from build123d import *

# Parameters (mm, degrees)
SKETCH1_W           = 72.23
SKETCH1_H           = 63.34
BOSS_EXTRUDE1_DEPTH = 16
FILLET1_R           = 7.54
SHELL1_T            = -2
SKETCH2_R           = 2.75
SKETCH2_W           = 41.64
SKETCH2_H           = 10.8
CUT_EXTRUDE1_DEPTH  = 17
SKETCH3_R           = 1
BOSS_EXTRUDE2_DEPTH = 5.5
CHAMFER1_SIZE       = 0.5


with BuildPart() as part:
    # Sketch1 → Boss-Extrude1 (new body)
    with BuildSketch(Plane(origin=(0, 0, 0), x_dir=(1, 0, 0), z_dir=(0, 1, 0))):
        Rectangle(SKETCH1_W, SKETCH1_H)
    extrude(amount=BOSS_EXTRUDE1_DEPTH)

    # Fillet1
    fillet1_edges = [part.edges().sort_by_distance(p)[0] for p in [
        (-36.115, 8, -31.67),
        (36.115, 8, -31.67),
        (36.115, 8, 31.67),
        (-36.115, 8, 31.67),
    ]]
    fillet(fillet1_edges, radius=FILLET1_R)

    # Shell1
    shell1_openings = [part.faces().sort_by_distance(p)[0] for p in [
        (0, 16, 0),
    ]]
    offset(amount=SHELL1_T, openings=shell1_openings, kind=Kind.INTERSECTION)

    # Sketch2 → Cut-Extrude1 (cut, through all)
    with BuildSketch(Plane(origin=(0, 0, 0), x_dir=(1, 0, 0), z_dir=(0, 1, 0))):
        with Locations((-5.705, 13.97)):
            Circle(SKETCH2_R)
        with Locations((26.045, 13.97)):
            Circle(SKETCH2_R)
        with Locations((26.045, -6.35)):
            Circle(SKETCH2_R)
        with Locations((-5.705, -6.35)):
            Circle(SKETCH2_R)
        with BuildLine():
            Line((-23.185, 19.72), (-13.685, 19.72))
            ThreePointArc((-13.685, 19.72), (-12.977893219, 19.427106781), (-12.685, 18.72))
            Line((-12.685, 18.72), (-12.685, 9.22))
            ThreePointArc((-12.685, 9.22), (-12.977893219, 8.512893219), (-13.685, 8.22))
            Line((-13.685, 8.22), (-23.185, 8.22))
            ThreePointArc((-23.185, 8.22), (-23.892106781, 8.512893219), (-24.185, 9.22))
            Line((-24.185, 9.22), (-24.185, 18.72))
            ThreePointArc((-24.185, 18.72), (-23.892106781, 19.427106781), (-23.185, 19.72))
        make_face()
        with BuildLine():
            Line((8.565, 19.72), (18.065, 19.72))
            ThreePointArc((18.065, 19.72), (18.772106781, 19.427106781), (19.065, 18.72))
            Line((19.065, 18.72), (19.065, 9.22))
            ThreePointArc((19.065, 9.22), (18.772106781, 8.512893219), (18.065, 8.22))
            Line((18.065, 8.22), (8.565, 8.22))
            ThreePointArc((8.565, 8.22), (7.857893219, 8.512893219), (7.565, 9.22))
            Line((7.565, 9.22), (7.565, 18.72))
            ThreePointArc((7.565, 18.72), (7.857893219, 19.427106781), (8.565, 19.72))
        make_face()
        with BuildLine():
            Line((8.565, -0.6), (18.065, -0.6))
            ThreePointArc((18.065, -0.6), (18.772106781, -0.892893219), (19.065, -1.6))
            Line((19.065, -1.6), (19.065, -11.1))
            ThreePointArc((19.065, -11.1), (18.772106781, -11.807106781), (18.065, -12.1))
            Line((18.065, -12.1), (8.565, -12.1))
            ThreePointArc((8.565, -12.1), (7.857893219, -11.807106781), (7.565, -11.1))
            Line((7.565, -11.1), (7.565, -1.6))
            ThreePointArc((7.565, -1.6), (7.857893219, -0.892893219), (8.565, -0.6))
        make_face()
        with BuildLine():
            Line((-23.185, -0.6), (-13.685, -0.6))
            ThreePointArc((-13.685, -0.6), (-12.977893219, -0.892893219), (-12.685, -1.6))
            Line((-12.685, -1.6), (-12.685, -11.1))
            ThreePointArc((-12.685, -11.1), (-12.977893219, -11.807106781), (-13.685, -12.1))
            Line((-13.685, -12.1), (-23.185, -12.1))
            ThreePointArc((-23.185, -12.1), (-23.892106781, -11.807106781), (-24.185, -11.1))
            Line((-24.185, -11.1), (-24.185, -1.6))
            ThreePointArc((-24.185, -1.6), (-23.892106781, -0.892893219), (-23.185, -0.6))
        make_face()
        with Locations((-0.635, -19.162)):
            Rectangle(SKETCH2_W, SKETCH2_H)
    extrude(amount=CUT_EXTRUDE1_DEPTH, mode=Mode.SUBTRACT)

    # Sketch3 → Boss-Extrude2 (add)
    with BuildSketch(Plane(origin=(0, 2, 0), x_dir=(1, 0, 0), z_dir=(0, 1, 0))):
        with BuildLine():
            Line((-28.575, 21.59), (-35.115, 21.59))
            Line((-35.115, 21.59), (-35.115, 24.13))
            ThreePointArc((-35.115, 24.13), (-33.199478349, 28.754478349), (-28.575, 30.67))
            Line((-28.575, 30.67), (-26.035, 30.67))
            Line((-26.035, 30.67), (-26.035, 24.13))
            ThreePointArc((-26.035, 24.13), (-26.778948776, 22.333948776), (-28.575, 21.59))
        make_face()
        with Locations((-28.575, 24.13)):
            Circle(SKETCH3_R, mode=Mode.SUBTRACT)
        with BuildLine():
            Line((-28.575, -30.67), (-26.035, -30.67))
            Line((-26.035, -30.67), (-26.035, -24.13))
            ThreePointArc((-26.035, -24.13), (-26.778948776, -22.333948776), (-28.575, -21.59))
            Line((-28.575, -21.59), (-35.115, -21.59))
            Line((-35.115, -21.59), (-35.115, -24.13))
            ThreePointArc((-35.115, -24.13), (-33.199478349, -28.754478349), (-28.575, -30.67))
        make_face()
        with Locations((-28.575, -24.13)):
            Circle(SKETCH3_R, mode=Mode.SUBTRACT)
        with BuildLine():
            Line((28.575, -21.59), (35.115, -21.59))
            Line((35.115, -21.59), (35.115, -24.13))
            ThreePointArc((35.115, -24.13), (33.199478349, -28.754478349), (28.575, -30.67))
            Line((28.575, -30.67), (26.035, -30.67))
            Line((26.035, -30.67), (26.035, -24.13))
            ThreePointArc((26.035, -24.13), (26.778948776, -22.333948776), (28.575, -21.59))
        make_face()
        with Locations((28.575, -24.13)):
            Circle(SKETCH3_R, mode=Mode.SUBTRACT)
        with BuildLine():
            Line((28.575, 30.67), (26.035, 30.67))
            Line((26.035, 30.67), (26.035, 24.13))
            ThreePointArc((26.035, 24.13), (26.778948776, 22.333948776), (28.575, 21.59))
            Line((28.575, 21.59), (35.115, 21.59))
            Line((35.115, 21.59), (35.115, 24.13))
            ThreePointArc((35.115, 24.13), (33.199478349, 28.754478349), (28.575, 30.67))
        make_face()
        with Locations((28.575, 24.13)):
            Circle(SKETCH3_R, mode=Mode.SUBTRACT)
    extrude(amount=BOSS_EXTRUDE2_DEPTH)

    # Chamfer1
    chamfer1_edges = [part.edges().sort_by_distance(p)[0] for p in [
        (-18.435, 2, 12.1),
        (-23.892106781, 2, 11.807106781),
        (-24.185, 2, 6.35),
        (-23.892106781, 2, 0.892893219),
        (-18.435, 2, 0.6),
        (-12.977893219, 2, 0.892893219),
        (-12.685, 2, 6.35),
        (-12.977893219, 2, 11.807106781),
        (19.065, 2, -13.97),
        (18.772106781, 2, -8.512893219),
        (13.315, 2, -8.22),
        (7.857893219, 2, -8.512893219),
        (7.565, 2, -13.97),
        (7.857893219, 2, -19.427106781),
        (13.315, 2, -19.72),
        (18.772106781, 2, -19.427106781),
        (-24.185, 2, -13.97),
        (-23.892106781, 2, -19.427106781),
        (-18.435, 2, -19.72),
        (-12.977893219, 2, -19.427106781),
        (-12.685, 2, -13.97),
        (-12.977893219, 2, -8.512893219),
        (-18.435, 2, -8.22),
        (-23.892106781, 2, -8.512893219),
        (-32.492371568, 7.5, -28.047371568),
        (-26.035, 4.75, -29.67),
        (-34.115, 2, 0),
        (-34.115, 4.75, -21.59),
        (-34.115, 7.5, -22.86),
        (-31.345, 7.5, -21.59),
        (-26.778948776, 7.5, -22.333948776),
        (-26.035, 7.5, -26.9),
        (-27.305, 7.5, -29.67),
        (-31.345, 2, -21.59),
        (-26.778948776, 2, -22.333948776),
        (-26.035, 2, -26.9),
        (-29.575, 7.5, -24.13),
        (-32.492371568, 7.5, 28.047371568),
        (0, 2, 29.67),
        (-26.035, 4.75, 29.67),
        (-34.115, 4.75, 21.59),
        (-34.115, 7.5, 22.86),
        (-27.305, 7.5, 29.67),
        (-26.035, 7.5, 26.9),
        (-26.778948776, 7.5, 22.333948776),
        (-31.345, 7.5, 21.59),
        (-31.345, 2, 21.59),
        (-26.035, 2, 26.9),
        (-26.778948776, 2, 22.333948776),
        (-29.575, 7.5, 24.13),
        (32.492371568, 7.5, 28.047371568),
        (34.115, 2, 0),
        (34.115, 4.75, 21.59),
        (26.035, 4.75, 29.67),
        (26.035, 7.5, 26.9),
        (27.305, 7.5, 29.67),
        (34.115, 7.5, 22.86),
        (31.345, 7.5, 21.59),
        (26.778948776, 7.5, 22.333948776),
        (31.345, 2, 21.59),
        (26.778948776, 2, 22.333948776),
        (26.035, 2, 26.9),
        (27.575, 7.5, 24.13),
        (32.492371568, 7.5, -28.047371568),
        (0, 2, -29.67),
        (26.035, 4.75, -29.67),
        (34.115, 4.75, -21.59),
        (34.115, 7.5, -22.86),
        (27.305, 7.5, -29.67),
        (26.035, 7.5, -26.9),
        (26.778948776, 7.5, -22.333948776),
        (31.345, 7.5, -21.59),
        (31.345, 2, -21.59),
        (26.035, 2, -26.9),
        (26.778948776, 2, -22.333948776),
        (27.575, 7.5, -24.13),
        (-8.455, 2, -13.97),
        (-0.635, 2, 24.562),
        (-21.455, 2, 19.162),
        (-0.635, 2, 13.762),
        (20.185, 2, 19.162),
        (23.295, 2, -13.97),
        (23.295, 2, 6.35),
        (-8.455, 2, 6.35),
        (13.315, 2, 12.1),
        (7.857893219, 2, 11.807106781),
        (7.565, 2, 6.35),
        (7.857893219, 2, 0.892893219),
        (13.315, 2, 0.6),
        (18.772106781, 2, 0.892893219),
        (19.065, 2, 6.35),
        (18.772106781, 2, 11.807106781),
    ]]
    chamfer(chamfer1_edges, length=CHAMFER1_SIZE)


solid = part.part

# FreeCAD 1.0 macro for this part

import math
import FreeCAD as App
import Part
import Sketcher

V = App.Vector


def edges_at(feature, points):
    """Names of the edges that pass closest to the given points."""
    edges = feature.Shape.Edges
    near = lambda p: min(range(len(edges)), key=lambda i: edges[i].distToShape(Part.Vertex(*p))[0])
    return sorted({f"Edge{near(p) + 1}" for p in points})


def faces_at(feature, points):
    """Names of the faces that lie closest to the given points."""
    faces = feature.Shape.Faces
    near = lambda p: min(range(len(faces)), key=lambda i: faces[i].distToShape(Part.Vertex(*p))[0])
    return sorted({f"Face{near(p) + 1}" for p in points})


def add_polygon(sketch, points):
    """Adds a closed chain of lines whose ends are joined by coincident constraints."""
    first, n = sketch.GeometryCount, len(points)
    for a, b in zip(points, points[1:] + points[:1]):
        sketch.addGeometry(Part.LineSegment(App.Vector(*a, 0), App.Vector(*b, 0)), False)
    for i in range(n):
        sketch.addConstraint(Sketcher.Constraint("Coincident", first + i, 2, first + (i + 1) % n, 1))

doc = App.newDocument("Part")
params = doc.addObject("Spreadsheet::Sheet", "Params")
for row, (alias, value) in enumerate([
    ("sketch1_width", "72.23 mm"),
    ("sketch1_height", "63.34 mm"),
    ("pad1_length", "16 mm"),
    ("fillet_radius", "7.54 mm"),
    ("thickness_wall", "2 mm"),
    ("sketch2_radius", "1 mm"),
    ("sketch2_diameter", "5.5 mm"),
    ("sketch2_width", "9.5 mm"),
    ("sketch2_height", "10.8 mm"),
    ("sketch2_width2", "41.64 mm"),
    ("sketch3_diameter", "2 mm"),
    ("sketch3_radius", "2.54 mm"),
    ("sketch3_radius2", "6.54 mm"),
    ("pad2_length", "5.5 mm"),
    ("chamfer_size", "0.5 mm"),
], start=1):
    params.set(f"A{row}", alias)
    params.set(f"B{row}", "=" + value)
    params.setAlias(f"B{row}", alias)

body = doc.addObject("PartDesign::Body", "Body")

sketch1 = body.newObject("Sketcher::SketchObject", "Sketch")
sketch1.AttachmentSupport = (doc.getObject("XZ_Plane"), [""])
sketch1.MapMode = "FlatFace"
add_polygon(sketch1, [(-36, -32), (-36, 32), (36, 32), (36, -32)])
sketch1.addConstraint([
    Sketcher.Constraint("Vertical", 0),
    Sketcher.Constraint("Horizontal", 1),
    Sketcher.Constraint("Vertical", 2),
    Sketcher.Constraint("Horizontal", 3),
    Sketcher.Constraint("Symmetric", 0, 2, 2, 2, -1, 1),
    Sketcher.Constraint("DistanceX", 1, 1, 1, 2, 72.23),
    Sketcher.Constraint("DistanceY", 0, 1, 0, 2, 63.34),
])
sketch1.setExpression("Constraints[9]", "Params.sketch1_width")
sketch1.setExpression("Constraints[10]", "Params.sketch1_height")
pad1 = body.newObject("PartDesign::Pad", "Pad")
pad1.Profile = sketch1
pad1.setExpression("Length", "Params.pad1_length")
pad1.Reversed = True
doc.recompute()

fillet = body.newObject("PartDesign::Fillet", "Fillet")
fillet.Base = (pad1, edges_at(pad1, [
    (-36.115, 8, -31.67),
    (36.115, 8, -31.67),
    (36.115, 8, 31.67),
    (-36.115, 8, 31.67),
]))
fillet.setExpression("Radius", "Params.fillet_radius")
doc.recompute()

thickness = body.newObject("PartDesign::Thickness", "Thickness")
thickness.Base = (fillet, faces_at(fillet, [(0, 16, 0)]))
thickness.setExpression("Value", "Params.thickness_wall")
thickness.Reversed = True
thickness.Join = "Intersection"

sketch2 = body.newObject("Sketcher::SketchObject", "Sketch001")
sketch2.AttachmentSupport = (doc.getObject("XZ_Plane"), [""])
sketch2.MapMode = "FlatFace"
sketch2.addGeometry(Part.Circle(V(-5.7, -14, 0), V(0, 0, 1), 2.8), False)
sketch2.addGeometry(Part.Circle(V(26, -14, 0), V(0, 0, 1), 2.8), False)
sketch2.addGeometry(Part.Circle(V(26, 6.3, 0), V(0, 0, 1), 2.8), False)
sketch2.addGeometry(Part.Circle(V(-5.7, 6.3, 0), V(0, 0, 1), 2.8), False)
sketch2.addGeometry(Part.LineSegment(V(-13.7, -19.7, 0), V(-23.2, -19.7, 0)), False)
sketch2.addGeometry(Part.ArcOfCircle(Part.Circle(V(-23.2, -18.7, 0), V(0, 0, 1), 1), math.radians(-180), math.radians(-90)), False)
sketch2.addGeometry(Part.LineSegment(V(-24.2, -18.7, 0), V(-24.2, -9.2, 0)), False)
sketch2.addGeometry(Part.ArcOfCircle(Part.Circle(V(-23.2, -9.2, 0), V(0, 0, 1), 1), math.radians(90), math.radians(180)), False)
sketch2.addGeometry(Part.LineSegment(V(-23.2, -8.2, 0), V(-13.7, -8.2, 0)), False)
sketch2.addGeometry(Part.ArcOfCircle(Part.Circle(V(-13.7, -9.2, 0), V(0, 0, 1), 1), math.radians(0), math.radians(90)), False)
sketch2.addGeometry(Part.LineSegment(V(-12.7, -9.2, 0), V(-12.7, -18.7, 0)), False)
sketch2.addGeometry(Part.ArcOfCircle(Part.Circle(V(-13.7, -18.7, 0), V(0, 0, 1), 1), math.radians(-90), math.radians(0)), False)
sketch2.addGeometry(Part.LineSegment(V(18.1, -19.7, 0), V(8.6, -19.7, 0)), False)
sketch2.addGeometry(Part.ArcOfCircle(Part.Circle(V(8.6, -18.7, 0), V(0, 0, 1), 1), math.radians(-180), math.radians(-90)), False)
sketch2.addGeometry(Part.LineSegment(V(7.6, -18.7, 0), V(7.6, -9.2, 0)), False)
sketch2.addGeometry(Part.ArcOfCircle(Part.Circle(V(8.6, -9.2, 0), V(0, 0, 1), 1), math.radians(90), math.radians(180)), False)
sketch2.addGeometry(Part.LineSegment(V(8.6, -8.2, 0), V(18.1, -8.2, 0)), False)
sketch2.addGeometry(Part.ArcOfCircle(Part.Circle(V(18.1, -9.2, 0), V(0, 0, 1), 1), math.radians(0), math.radians(90)), False)
sketch2.addGeometry(Part.LineSegment(V(19.1, -9.2, 0), V(19.1, -18.7, 0)), False)
sketch2.addGeometry(Part.ArcOfCircle(Part.Circle(V(18.1, -18.7, 0), V(0, 0, 1), 1), math.radians(-90), math.radians(0)), False)
sketch2.addGeometry(Part.LineSegment(V(18.1, 0.6, 0), V(8.6, 0.6, 0)), False)
sketch2.addGeometry(Part.ArcOfCircle(Part.Circle(V(8.6, 1.6, 0), V(0, 0, 1), 1), math.radians(-180), math.radians(-90)), False)
sketch2.addGeometry(Part.LineSegment(V(7.6, 1.6, 0), V(7.6, 11.1, 0)), False)
sketch2.addGeometry(Part.ArcOfCircle(Part.Circle(V(8.6, 11.1, 0), V(0, 0, 1), 1), math.radians(90), math.radians(180)), False)
sketch2.addGeometry(Part.LineSegment(V(8.6, 12.1, 0), V(18.1, 12.1, 0)), False)
sketch2.addGeometry(Part.ArcOfCircle(Part.Circle(V(18.1, 11.1, 0), V(0, 0, 1), 1), math.radians(0), math.radians(90)), False)
sketch2.addGeometry(Part.LineSegment(V(19.1, 11.1, 0), V(19.1, 1.6, 0)), False)
sketch2.addGeometry(Part.ArcOfCircle(Part.Circle(V(18.1, 1.6, 0), V(0, 0, 1), 1), math.radians(-90), math.radians(0)), False)
sketch2.addGeometry(Part.LineSegment(V(-13.7, 0.6, 0), V(-23.2, 0.6, 0)), False)
sketch2.addGeometry(Part.ArcOfCircle(Part.Circle(V(-23.2, 1.6, 0), V(0, 0, 1), 1), math.radians(-180), math.radians(-90)), False)
sketch2.addGeometry(Part.LineSegment(V(-24.2, 1.6, 0), V(-24.2, 11.1, 0)), False)
sketch2.addGeometry(Part.ArcOfCircle(Part.Circle(V(-23.2, 11.1, 0), V(0, 0, 1), 1), math.radians(90), math.radians(180)), False)
sketch2.addGeometry(Part.LineSegment(V(-23.2, 12.1, 0), V(-13.7, 12.1, 0)), False)
sketch2.addGeometry(Part.ArcOfCircle(Part.Circle(V(-13.7, 11.1, 0), V(0, 0, 1), 1), math.radians(0), math.radians(90)), False)
sketch2.addGeometry(Part.LineSegment(V(-12.7, 11.1, 0), V(-12.7, 1.6, 0)), False)
sketch2.addGeometry(Part.ArcOfCircle(Part.Circle(V(-13.7, 1.6, 0), V(0, 0, 1), 1), math.radians(-90), math.radians(0)), False)
add_polygon(sketch2, [(-21.5, 13.8), (-21.5, 24.6), (20.2, 24.6), (20.2, 13.8)])
sketch2.addConstraint([
    Sketcher.Constraint("Tangent", 4, 2, 5, 2),
    Sketcher.Constraint("Tangent", 5, 1, 6, 1),
    Sketcher.Constraint("Tangent", 6, 2, 7, 2),
    Sketcher.Constraint("Tangent", 7, 1, 8, 1),
    Sketcher.Constraint("Tangent", 8, 2, 9, 2),
    Sketcher.Constraint("Tangent", 9, 1, 10, 1),
    Sketcher.Constraint("Tangent", 10, 2, 11, 2),
    Sketcher.Constraint("Tangent", 11, 1, 4, 1),
    Sketcher.Constraint("Tangent", 12, 2, 13, 2),
    Sketcher.Constraint("Tangent", 13, 1, 14, 1),
    Sketcher.Constraint("Tangent", 14, 2, 15, 2),
    Sketcher.Constraint("Tangent", 15, 1, 16, 1),
    Sketcher.Constraint("Tangent", 16, 2, 17, 2),
    Sketcher.Constraint("Tangent", 17, 1, 18, 1),
    Sketcher.Constraint("Tangent", 18, 2, 19, 2),
    Sketcher.Constraint("Tangent", 19, 1, 12, 1),
    Sketcher.Constraint("Tangent", 20, 2, 21, 2),
    Sketcher.Constraint("Tangent", 21, 1, 22, 1),
    Sketcher.Constraint("Tangent", 22, 2, 23, 2),
    Sketcher.Constraint("Tangent", 23, 1, 24, 1),
    Sketcher.Constraint("Tangent", 24, 2, 25, 2),
    Sketcher.Constraint("Tangent", 25, 1, 26, 1),
    Sketcher.Constraint("Tangent", 26, 2, 27, 2),
    Sketcher.Constraint("Tangent", 27, 1, 20, 1),
    Sketcher.Constraint("Tangent", 28, 2, 29, 2),
    Sketcher.Constraint("Tangent", 29, 1, 30, 1),
    Sketcher.Constraint("Tangent", 30, 2, 31, 2),
    Sketcher.Constraint("Tangent", 31, 1, 32, 1),
    Sketcher.Constraint("Tangent", 32, 2, 33, 2),
    Sketcher.Constraint("Tangent", 33, 1, 34, 1),
    Sketcher.Constraint("Tangent", 34, 2, 35, 2),
    Sketcher.Constraint("Tangent", 35, 1, 28, 1),
    Sketcher.Constraint("Horizontal", 4),
    Sketcher.Constraint("Vertical", 6),
    Sketcher.Constraint("Horizontal", 8),
    Sketcher.Constraint("Vertical", 10),
    Sketcher.Constraint("Horizontal", 12),
    Sketcher.Constraint("Vertical", 14),
    Sketcher.Constraint("Horizontal", 16),
    Sketcher.Constraint("Vertical", 18),
    Sketcher.Constraint("Horizontal", 20),
    Sketcher.Constraint("Vertical", 22),
    Sketcher.Constraint("Horizontal", 24),
    Sketcher.Constraint("Vertical", 26),
    Sketcher.Constraint("Horizontal", 28),
    Sketcher.Constraint("Vertical", 30),
    Sketcher.Constraint("Horizontal", 32),
    Sketcher.Constraint("Vertical", 34),
    Sketcher.Constraint("Vertical", 36),
    Sketcher.Constraint("Horizontal", 37),
    Sketcher.Constraint("Vertical", 38),
    Sketcher.Constraint("Horizontal", 39),
    Sketcher.Constraint("Equal", 0, 1),
    Sketcher.Constraint("Equal", 1, 2),
    Sketcher.Constraint("Equal", 2, 3),
    Sketcher.Constraint("Equal", 5, 7),
    Sketcher.Constraint("Equal", 7, 9),
    Sketcher.Constraint("Equal", 9, 11),
    Sketcher.Constraint("Equal", 11, 13),
    Sketcher.Constraint("Equal", 13, 15),
    Sketcher.Constraint("Equal", 15, 17),
    Sketcher.Constraint("Equal", 17, 19),
    Sketcher.Constraint("Equal", 19, 21),
    Sketcher.Constraint("Equal", 21, 23),
    Sketcher.Constraint("Equal", 23, 25),
    Sketcher.Constraint("Equal", 25, 27),
    Sketcher.Constraint("Equal", 27, 29),
    Sketcher.Constraint("Equal", 29, 31),
    Sketcher.Constraint("Equal", 31, 33),
    Sketcher.Constraint("Equal", 33, 35),
    Sketcher.Constraint("Horizontal", 0, 3, 1, 3),
    Sketcher.Constraint("Horizontal", 2, 3, 3, 3),
    Sketcher.Constraint("Horizontal", 11, 3, 13, 3),
    Sketcher.Constraint("Horizontal", 9, 3, 15, 3),
    Sketcher.Constraint("Horizontal", 27, 3, 29, 3),
    Sketcher.Constraint("Horizontal", 25, 3, 31, 3),
    Sketcher.Constraint("Vertical", 1, 3, 2, 3),
    Sketcher.Constraint("Vertical", 0, 3, 3, 3),
    Sketcher.Constraint("Vertical", 15, 3, 21, 3),
    Sketcher.Constraint("Vertical", 19, 3, 25, 3),
    Sketcher.Constraint("Vertical", 7, 3, 29, 3),
    Sketcher.Constraint("Vertical", 11, 3, 33, 3),
    Sketcher.Constraint("Equal", 8, 12),
    Sketcher.Constraint("Equal", 32, 6),
    Sketcher.Constraint("Equal", 18, 22),
    Sketcher.Constraint("Radius", 5, 1.0),
    Sketcher.Constraint("Diameter", 0, 5.5),
    Sketcher.Constraint("DistanceX", 4, 2, 4, 1, 9.5),
    Sketcher.Constraint("DistanceY", 36, 1, 36, 2, 10.8),
    Sketcher.Constraint("DistanceX", 37, 1, 37, 2, 41.64),
    Sketcher.Constraint("DistanceY", -1, 1, 21, 3, 1.6),
    Sketcher.Constraint("DistanceY", 0, 3, -1, 1, 13.97),
    Sketcher.Constraint("DistanceY", -1, 1, 2, 3, 6.35),
    Sketcher.Constraint("DistanceY", 5, 3, -1, 1, 18.72),
    Sketcher.Constraint("DistanceX", 0, 3, 1, 3, 31.75),
    Sketcher.Constraint("DistanceX", 5, 3, 0, 3, 17.48),
    Sketcher.Constraint("DistanceX", 0, 3, 13, 3, 14.27),
    Sketcher.Constraint("DistanceX", 31, 1, 36, 2, 1.73),
    Sketcher.Constraint("DistanceX", 0, 3, -1, 1, 5.705),
    Sketcher.Constraint("DistanceY", -1, 1, 36, 2, 24.562),
])
sketch2.setExpression("Constraints[89]", "Params.sketch2_radius")
sketch2.setExpression("Constraints[90]", "Params.sketch2_diameter")
sketch2.setExpression("Constraints[91]", "Params.sketch2_width")
sketch2.setExpression("Constraints[92]", "Params.sketch2_height")
sketch2.setExpression("Constraints[93]", "Params.sketch2_width2")
pocket1 = body.newObject("PartDesign::Pocket", "Pocket")
pocket1.Profile = sketch2
pocket1.Type = "ThroughAll"

sketch3 = body.newObject("Sketcher::SketchObject", "Sketch002")
sketch3.AttachmentSupport = (doc.getObject("XZ_Plane"), [""])
sketch3.MapMode = "FlatFace"
sketch3.AttachmentOffset = App.Placement(V(0, 0, -2), App.Rotation())
sketch3.addGeometry([
    Part.LineSegment(V(-35.1, -21.6, 0), V(-28.6, -21.6, 0)),
    Part.ArcOfCircle(Part.Circle(V(-28.6, -24.1, 0), V(0, 0, 1), 2.5), math.radians(0), math.radians(90)),
    Part.LineSegment(V(-26, -24.1, 0), V(-26, -30.7, 0)),
    Part.LineSegment(V(-26, -30.7, 0), V(-28.6, -30.7, 0)),
    Part.ArcOfCircle(Part.Circle(V(-28.6, -24.1, 0), V(0, 0, 1), 6.5), math.radians(180), math.radians(270)),
    Part.LineSegment(V(-35.1, -24.1, 0), V(-35.1, -21.6, 0)),
    Part.Circle(V(-28.6, -24.1, 0), V(0, 0, 1), 1),
    Part.LineSegment(V(-28.6, 30.7, 0), V(-26, 30.7, 0)),
    Part.LineSegment(V(-26, 30.7, 0), V(-26, 24.1, 0)),
    Part.ArcOfCircle(Part.Circle(V(-28.6, 24.1, 0), V(0, 0, 1), 2.5), math.radians(-90), math.radians(0)),
    Part.LineSegment(V(-28.6, 21.6, 0), V(-35.1, 21.6, 0)),
    Part.LineSegment(V(-35.1, 21.6, 0), V(-35.1, 24.1, 0)),
    Part.ArcOfCircle(Part.Circle(V(-28.6, 24.1, 0), V(0, 0, 1), 6.5), math.radians(90), math.radians(180)),
    Part.Circle(V(-28.6, 24.1, 0), V(0, 0, 1), 1),
    Part.LineSegment(V(35.1, 21.6, 0), V(28.6, 21.6, 0)),
    Part.ArcOfCircle(Part.Circle(V(28.6, 24.1, 0), V(0, 0, 1), 2.5), math.radians(-180), math.radians(-90)),
    Part.LineSegment(V(26, 24.1, 0), V(26, 30.7, 0)),
    Part.LineSegment(V(26, 30.7, 0), V(28.6, 30.7, 0)),
    Part.ArcOfCircle(Part.Circle(V(28.6, 24.1, 0), V(0, 0, 1), 6.5), math.radians(0), math.radians(90)),
    Part.LineSegment(V(35.1, 24.1, 0), V(35.1, 21.6, 0)),
    Part.Circle(V(28.6, 24.1, 0), V(0, 0, 1), 1),
    Part.LineSegment(V(28.6, -30.7, 0), V(26, -30.7, 0)),
    Part.LineSegment(V(26, -30.7, 0), V(26, -24.1, 0)),
    Part.ArcOfCircle(Part.Circle(V(28.6, -24.1, 0), V(0, 0, 1), 2.5), math.radians(90), math.radians(180)),
    Part.LineSegment(V(28.6, -21.6, 0), V(35.1, -21.6, 0)),
    Part.LineSegment(V(35.1, -21.6, 0), V(35.1, -24.1, 0)),
    Part.ArcOfCircle(Part.Circle(V(28.6, -24.1, 0), V(0, 0, 1), 6.5), math.radians(-90), math.radians(0)),
    Part.Circle(V(28.6, -24.1, 0), V(0, 0, 1), 1),
], False)
sketch3.addConstraint([
    Sketcher.Constraint("Tangent", 0, 2, 1, 2),
    Sketcher.Constraint("Tangent", 1, 1, 2, 1),
    Sketcher.Constraint("Coincident", 2, 2, 3, 1),
    Sketcher.Constraint("Tangent", 3, 2, 4, 2),
    Sketcher.Constraint("Tangent", 4, 1, 5, 1),
    Sketcher.Constraint("Coincident", 5, 2, 0, 1),
    Sketcher.Constraint("Coincident", 7, 2, 8, 1),
    Sketcher.Constraint("Tangent", 8, 2, 9, 2),
    Sketcher.Constraint("Tangent", 9, 1, 10, 1),
    Sketcher.Constraint("Coincident", 10, 2, 11, 1),
    Sketcher.Constraint("Tangent", 11, 2, 12, 2),
    Sketcher.Constraint("Tangent", 12, 1, 7, 1),
    Sketcher.Constraint("Tangent", 14, 2, 15, 2),
    Sketcher.Constraint("Tangent", 15, 1, 16, 1),
    Sketcher.Constraint("Coincident", 16, 2, 17, 1),
    Sketcher.Constraint("Tangent", 17, 2, 18, 2),
    Sketcher.Constraint("Tangent", 18, 1, 19, 1),
    Sketcher.Constraint("Coincident", 19, 2, 14, 1),
    Sketcher.Constraint("Coincident", 21, 2, 22, 1),
    Sketcher.Constraint("Tangent", 22, 2, 23, 2),
    Sketcher.Constraint("Tangent", 23, 1, 24, 1),
    Sketcher.Constraint("Coincident", 24, 2, 25, 1),
    Sketcher.Constraint("Tangent", 25, 2, 26, 2),
    Sketcher.Constraint("Tangent", 26, 1, 21, 1),
    Sketcher.Constraint("Horizontal", 0),
    Sketcher.Constraint("Vertical", 2),
    Sketcher.Constraint("Horizontal", 3),
    Sketcher.Constraint("Vertical", 5),
    Sketcher.Constraint("Horizontal", 7),
    Sketcher.Constraint("Vertical", 8),
    Sketcher.Constraint("Horizontal", 10),
    Sketcher.Constraint("Vertical", 11),
    Sketcher.Constraint("Horizontal", 14),
    Sketcher.Constraint("Vertical", 16),
    Sketcher.Constraint("Horizontal", 17),
    Sketcher.Constraint("Vertical", 19),
    Sketcher.Constraint("Horizontal", 21),
    Sketcher.Constraint("Vertical", 22),
    Sketcher.Constraint("Horizontal", 24),
    Sketcher.Constraint("Vertical", 25),
    Sketcher.Constraint("Coincident", 4, 3, 1, 3),
    Sketcher.Constraint("Coincident", 6, 3, 1, 3),
    Sketcher.Constraint("Coincident", 12, 3, 9, 3),
    Sketcher.Constraint("Coincident", 13, 3, 9, 3),
    Sketcher.Constraint("Coincident", 18, 3, 15, 3),
    Sketcher.Constraint("Coincident", 20, 3, 15, 3),
    Sketcher.Constraint("Coincident", 26, 3, 23, 3),
    Sketcher.Constraint("Coincident", 27, 3, 23, 3),
    Sketcher.Constraint("Equal", 1, 9),
    Sketcher.Constraint("Equal", 4, 12),
    Sketcher.Constraint("Equal", 6, 13),
    Sketcher.Constraint("Equal", 9, 15),
    Sketcher.Constraint("Equal", 12, 18),
    Sketcher.Constraint("Equal", 13, 20),
    Sketcher.Constraint("Equal", 15, 23),
    Sketcher.Constraint("Equal", 18, 26),
    Sketcher.Constraint("Equal", 20, 27),
    Sketcher.Constraint("Symmetric", 1, 3, 15, 3, -1, 1),
    Sketcher.Constraint("Symmetric", 9, 3, 23, 3, -1, 1),
    Sketcher.Constraint("Symmetric", 9, 3, 15, 3, -2),
    Sketcher.Constraint("Diameter", 6, 2.0),
    Sketcher.Constraint("Radius", 1, 2.54),
    Sketcher.Constraint("Radius", 4, 6.54),
    Sketcher.Constraint("DistanceY", 1, 3, -1, 1, 24.13),
    Sketcher.Constraint("DistanceX", 12, 3, 15, 3, 57.15),
])
sketch3.setExpression("Constraints[60]", "Params.sketch3_diameter")
sketch3.setExpression("Constraints[61]", "Params.sketch3_radius")
sketch3.setExpression("Constraints[62]", "Params.sketch3_radius2")
pad2 = body.newObject("PartDesign::Pad", "Pad001")
pad2.Profile = sketch3
pad2.setExpression("Length", "Params.pad2_length")
pad2.Reversed = True
doc.recompute()

chamfer = body.newObject("PartDesign::Chamfer", "Chamfer")
chamfer.Base = (pad2, edges_at(pad2, [
    (-18.435, 2, 12.1),
    (-23.892, 2, 11.807),
    (-24.185, 2, 6.35),
    (-23.892, 2, 0.893),
    (-18.435, 2, 0.6),
    (-12.978, 2, 0.893),
    (-12.685, 2, 6.35),
    (-12.978, 2, 11.807),
    (19.065, 2, -13.97),
    (18.772, 2, -8.513),
    (13.315, 2, -8.22),
    (7.858, 2, -8.513),
    (7.565, 2, -13.97),
    (7.858, 2, -19.427),
    (13.315, 2, -19.72),
    (18.772, 2, -19.427),
    (-24.185, 2, -13.97),
    (-23.892, 2, -19.427),
    (-18.435, 2, -19.72),
    (-12.978, 2, -19.427),
    (-12.685, 2, -13.97),
    (-12.978, 2, -8.513),
    (-18.435, 2, -8.22),
    (-23.892, 2, -8.513),
    (-32.492, 7.5, -28.047),
    (-26.035, 4.75, -29.67),
    (-34.115, 2, 0),
    (-34.115, 4.75, -21.59),
    (-34.115, 7.5, -22.86),
    (-31.345, 7.5, -21.59),
    (-26.779, 7.5, -22.334),
    (-26.035, 7.5, -26.9),
    (-27.305, 7.5, -29.67),
    (-31.345, 2, -21.59),
    (-26.779, 2, -22.334),
    (-26.035, 2, -26.9),
    (-29.575, 7.5, -24.13),
    (-32.492, 7.5, 28.047),
    (0, 2, 29.67),
    (-26.035, 4.75, 29.67),
    (-34.115, 4.75, 21.59),
    (-34.115, 7.5, 22.86),
    (-27.305, 7.5, 29.67),
    (-26.035, 7.5, 26.9),
    (-26.779, 7.5, 22.334),
    (-31.345, 7.5, 21.59),
    (-31.345, 2, 21.59),
    (-26.035, 2, 26.9),
    (-26.779, 2, 22.334),
    (-29.575, 7.5, 24.13),
    (32.492, 7.5, 28.047),
    (34.115, 2, 0),
    (34.115, 4.75, 21.59),
    (26.035, 4.75, 29.67),
    (26.035, 7.5, 26.9),
    (27.305, 7.5, 29.67),
    (34.115, 7.5, 22.86),
    (31.345, 7.5, 21.59),
    (26.779, 7.5, 22.334),
    (31.345, 2, 21.59),
    (26.779, 2, 22.334),
    (26.035, 2, 26.9),
    (27.575, 7.5, 24.13),
    (32.492, 7.5, -28.047),
    (0, 2, -29.67),
    (26.035, 4.75, -29.67),
    (34.115, 4.75, -21.59),
    (34.115, 7.5, -22.86),
    (27.305, 7.5, -29.67),
    (26.035, 7.5, -26.9),
    (26.779, 7.5, -22.334),
    (31.345, 7.5, -21.59),
    (31.345, 2, -21.59),
    (26.035, 2, -26.9),
    (26.779, 2, -22.334),
    (27.575, 7.5, -24.13),
    (-8.455, 2, -13.97),
    (-0.635, 2, 24.562),
    (-21.455, 2, 19.162),
    (-0.635, 2, 13.762),
    (20.185, 2, 19.162),
    (23.295, 2, -13.97),
    (23.295, 2, 6.35),
    (-8.455, 2, 6.35),
    (13.315, 2, 12.1),
    (7.858, 2, 11.807),
    (7.565, 2, 6.35),
    (7.858, 2, 0.893),
    (13.315, 2, 0.6),
    (18.772, 2, 0.893),
    (19.065, 2, 6.35),
    (18.772, 2, 11.807),
]))
chamfer.setExpression("Size", "Params.chamfer_size")

doc.recompute()
